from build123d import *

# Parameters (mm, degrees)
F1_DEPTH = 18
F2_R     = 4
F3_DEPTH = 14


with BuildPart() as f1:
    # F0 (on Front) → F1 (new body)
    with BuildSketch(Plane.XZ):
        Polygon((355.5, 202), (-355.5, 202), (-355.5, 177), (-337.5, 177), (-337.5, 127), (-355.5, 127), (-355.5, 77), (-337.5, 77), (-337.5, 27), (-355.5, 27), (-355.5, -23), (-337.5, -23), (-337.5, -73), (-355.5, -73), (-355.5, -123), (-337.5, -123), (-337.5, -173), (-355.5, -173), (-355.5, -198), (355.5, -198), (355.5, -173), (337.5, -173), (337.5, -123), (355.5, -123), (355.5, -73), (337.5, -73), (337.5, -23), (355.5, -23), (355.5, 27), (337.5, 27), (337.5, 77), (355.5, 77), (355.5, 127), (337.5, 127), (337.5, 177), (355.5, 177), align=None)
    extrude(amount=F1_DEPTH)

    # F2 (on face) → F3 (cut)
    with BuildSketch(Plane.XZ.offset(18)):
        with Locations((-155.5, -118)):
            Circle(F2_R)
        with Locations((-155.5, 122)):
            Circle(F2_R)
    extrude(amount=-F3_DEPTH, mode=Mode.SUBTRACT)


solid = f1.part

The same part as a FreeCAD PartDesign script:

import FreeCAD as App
import Part
import Sketcher
from FreeCAD import Vector

doc = App.newDocument("Part")
body = doc.addObject("PartDesign::Body", "Body")

# Sketch on XZ plane
sketch1 = body.newObject("Sketcher::SketchObject", "Sketch")
sketch1.AttachmentSupport = (doc.getObject("XZ_Plane"), [""])
sketch1.MapMode = "FlatFace"
sketch1.addGeometry(Part.LineSegment(Vector(356, 202, 0), Vector(-356, 202, 0)), False)
sketch1.addGeometry(Part.LineSegment(Vector(-356, 202, 0), Vector(-356, 177, 0)), False)
sketch1.addGeometry(Part.LineSegment(Vector(-356, 177, 0), Vector(-338, 177, 0)), False)
sketch1.addGeometry(Part.LineSegment(Vector(-338, 177, 0), Vector(-338, 127, 0)), False)
sketch1.addGeometry(Part.LineSegment(Vector(-338, 127, 0), Vector(-356, 127, 0)), False)
sketch1.addGeometry(Part.LineSegment(Vector(-356, 127, 0), Vector(-356, 77, 0)), False)
sketch1.addGeometry(Part.LineSegment(Vector(-356, 77, 0), Vector(-338, 77, 0)), False)
sketch1.addGeometry(Part.LineSegment(Vector(-338, 77, 0), Vector(-338, 27, 0)), False)
sketch1.addGeometry(Part.LineSegment(Vector(-338, 27, 0), Vector(-356, 27, 0)), False)
sketch1.addGeometry(Part.LineSegment(Vector(-356, 27, 0), Vector(-356, -23, 0)), False)
sketch1.addGeometry(Part.LineSegment(Vector(-356, -23, 0), Vector(-338, -23, 0)), False)
sketch1.addGeometry(Part.LineSegment(Vector(-338, -23, 0), Vector(-338, -73, 0)), False)
sketch1.addGeometry(Part.LineSegment(Vector(-338, -73, 0), Vector(-356, -73, 0)), False)
sketch1.addGeometry(Part.LineSegment(Vector(-356, -73, 0), Vector(-356, -123, 0)), False)
sketch1.addGeometry(Part.LineSegment(Vector(-356, -123, 0), Vector(-338, -123, 0)), False)
sketch1.addGeometry(Part.LineSegment(Vector(-338, -123, 0), Vector(-338, -173, 0)), False)
sketch1.addGeometry(Part.LineSegment(Vector(-338, -173, 0), Vector(-356, -173, 0)), False)
sketch1.addGeometry(Part.LineSegment(Vector(-356, -173, 0), Vector(-356, -198, 0)), False)
sketch1.addGeometry(Part.LineSegment(Vector(-356, -198, 0), Vector(356, -198, 0)), False)
sketch1.addGeometry(Part.LineSegment(Vector(356, -198, 0), Vector(356, -173, 0)), False)
sketch1.addGeometry(Part.LineSegment(Vector(356, -173, 0), Vector(338, -173, 0)), False)
sketch1.addGeometry(Part.LineSegment(Vector(338, -173, 0), Vector(338, -123, 0)), False)
sketch1.addGeometry(Part.LineSegment(Vector(338, -123, 0), Vector(356, -123, 0)), False)
sketch1.addGeometry(Part.LineSegment(Vector(356, -123, 0), Vector(356, -73, 0)), False)
sketch1.addGeometry(Part.LineSegment(Vector(356, -73, 0), Vector(338, -73, 0)), False)
sketch1.addGeometry(Part.LineSegment(Vector(338, -73, 0), Vector(338, -23, 0)), False)
sketch1.addGeometry(Part.LineSegment(Vector(338, -23, 0), Vector(356, -23, 0)), False)
sketch1.addGeometry(Part.LineSegment(Vector(356, -23, 0), Vector(356, 27, 0)), False)
sketch1.addGeometry(Part.LineSegment(Vector(356, 27, 0), Vector(338, 27, 0)), False)
sketch1.addGeometry(Part.LineSegment(Vector(338, 27, 0), Vector(338, 77, 0)), False)
sketch1.addGeometry(Part.LineSegment(Vector(338, 77, 0), Vector(356, 77, 0)), False)
sketch1.addGeometry(Part.LineSegment(Vector(356, 77, 0), Vector(356, 127, 0)), False)
sketch1.addGeometry(Part.LineSegment(Vector(356, 127, 0), Vector(338, 127, 0)), False)
sketch1.addGeometry(Part.LineSegment(Vector(338, 127, 0), Vector(338, 177, 0)), False)
sketch1.addGeometry(Part.LineSegment(Vector(338, 177, 0), Vector(356, 177, 0)), False)
sketch1.addGeometry(Part.LineSegment(Vector(356, 177, 0), Vector(356, 202, 0)), False)
sketch1.addConstraint(Sketcher.Constraint("Coincident", 0, 2, 1, 1))
sketch1.addConstraint(Sketcher.Constraint("Coincident", 1, 2, 2, 1))
sketch1.addConstraint(Sketcher.Constraint("Coincident", 2, 2, 3, 1))
sketch1.addConstraint(Sketcher.Constraint("Coincident", 3, 2, 4, 1))
sketch1.addConstraint(Sketcher.Constraint("Coincident", 4, 2, 5, 1))
sketch1.addConstraint(Sketcher.Constraint("Coincident", 5, 2, 6, 1))
sketch1.addConstraint(Sketcher.Constraint("Coincident", 6, 2, 7, 1))
sketch1.addConstraint(Sketcher.Constraint("Coincident", 7, 2, 8, 1))
sketch1.addConstraint(Sketcher.Constraint("Coincident", 8, 2, 9, 1))
sketch1.addConstraint(Sketcher.Constraint("Coincident", 9, 2, 10, 1))
sketch1.addConstraint(Sketcher.Constraint("Coincident", 10, 2, 11, 1))
sketch1.addConstraint(Sketcher.Constraint("Coincident", 11, 2, 12, 1))
sketch1.addConstraint(Sketcher.Constraint("Coincident", 12, 2, 13, 1))
sketch1.addConstraint(Sketcher.Constraint("Coincident", 13, 2, 14, 1))
sketch1.addConstraint(Sketcher.Constraint("Coincident", 14, 2, 15, 1))
sketch1.addConstraint(Sketcher.Constraint("Coincident", 15, 2, 16, 1))
sketch1.addConstraint(Sketcher.Constraint("Coincident", 16, 2, 17, 1))
sketch1.addConstraint(Sketcher.Constraint("Coincident", 17, 2, 18, 1))
sketch1.addConstraint(Sketcher.Constraint("Coincident", 18, 2, 19, 1))
sketch1.addConstraint(Sketcher.Constraint("Coincident", 19, 2, 20, 1))
sketch1.addConstraint(Sketcher.Constraint("Coincident", 20, 2, 21, 1))
sketch1.addConstraint(Sketcher.Constraint("Coincident", 21, 2, 22, 1))
sketch1.addConstraint(Sketcher.Constraint("Coincident", 22, 2, 23, 1))
sketch1.addConstraint(Sketcher.Constraint("Coincident", 23, 2, 24, 1))
sketch1.addConstraint(Sketcher.Constraint("Coincident", 24, 2, 25, 1))
sketch1.addConstraint(Sketcher.Constraint("Coincident", 25, 2, 26, 1))
sketch1.addConstraint(Sketcher.Constraint("Coincident", 26, 2, 27, 1))
sketch1.addConstraint(Sketcher.Constraint("Coincident", 27, 2, 28, 1))
sketch1.addConstraint(Sketcher.Constraint("Coincident", 28, 2, 29, 1))
sketch1.addConstraint(Sketcher.Constraint("Coincident", 29, 2, 30, 1))
sketch1.addConstraint(Sketcher.Constraint("Coincident", 30, 2, 31, 1))
sketch1.addConstraint(Sketcher.Constraint("Coincident", 31, 2, 32, 1))
sketch1.addConstraint(Sketcher.Constraint("Coincident", 32, 2, 33, 1))
sketch1.addConstraint(Sketcher.Constraint("Coincident", 33, 2, 34, 1))
sketch1.addConstraint(Sketcher.Constraint("Coincident", 34, 2, 35, 1))
sketch1.addConstraint(Sketcher.Constraint("Coincident", 35, 2, 0, 1))
sketch1.addConstraint(Sketcher.Constraint("Horizontal", 0))
sketch1.addConstraint(Sketcher.Constraint("Vertical", 1))
sketch1.addConstraint(Sketcher.Constraint("Horizontal", 2))
sketch1.addConstraint(Sketcher.Constraint("Vertical", 3))
sketch1.addConstraint(Sketcher.Constraint("Horizontal", 4))
sketch1.addConstraint(Sketcher.Constraint("Vertical", 5))
sketch1.addConstraint(Sketcher.Constraint("Horizontal", 6))
sketch1.addConstraint(Sketcher.Constraint("Vertical", 7))
sketch1.addConstraint(Sketcher.Constraint("Horizontal", 8))
sketch1.addConstraint(Sketcher.Constraint("Vertical", 9))
sketch1.addConstraint(Sketcher.Constraint("Horizontal", 10))
sketch1.addConstraint(Sketcher.Constraint("Vertical", 11))
sketch1.addConstraint(Sketcher.Constraint("Horizontal", 12))
sketch1.addConstraint(Sketcher.Constraint("Vertical", 13))
sketch1.addConstraint(Sketcher.Constraint("Horizontal", 14))
sketch1.addConstraint(Sketcher.Constraint("Vertical", 15))
sketch1.addConstraint(Sketcher.Constraint("Horizontal", 16))
sketch1.addConstraint(Sketcher.Constraint("Vertical", 17))
sketch1.addConstraint(Sketcher.Constraint("Horizontal", 18))
sketch1.addConstraint(Sketcher.Constraint("Vertical", 19))
sketch1.addConstraint(Sketcher.Constraint("Horizontal", 20))
sketch1.addConstraint(Sketcher.Constraint("Vertical", 21))
sketch1.addConstraint(Sketcher.Constraint("Horizontal", 22))
sketch1.addConstraint(Sketcher.Constraint("Vertical", 23))
sketch1.addConstraint(Sketcher.Constraint("Horizontal", 24))
sketch1.addConstraint(Sketcher.Constraint("Vertical", 25))
sketch1.addConstraint(Sketcher.Constraint("Horizontal", 26))
sketch1.addConstraint(Sketcher.Constraint("Vertical", 27))
sketch1.addConstraint(Sketcher.Constraint("Horizontal", 28))
sketch1.addConstraint(Sketcher.Constraint("Vertical", 29))
sketch1.addConstraint(Sketcher.Constraint("Horizontal", 30))
sketch1.addConstraint(Sketcher.Constraint("Vertical", 31))
sketch1.addConstraint(Sketcher.Constraint("Horizontal", 32))
sketch1.addConstraint(Sketcher.Constraint("Vertical", 33))
sketch1.addConstraint(Sketcher.Constraint("Horizontal", 34))
sketch1.addConstraint(Sketcher.Constraint("Vertical", 35))
sketch1.addConstraint(Sketcher.Constraint("Symmetric", 16, 2, 19, 2, -2))
sketch1.addConstraint(Sketcher.Constraint("Symmetric", 14, 2, 21, 2, -2))
sketch1.addConstraint(Sketcher.Constraint("Symmetric", 12, 2, 23, 2, -2))
sketch1.addConstraint(Sketcher.Constraint("Symmetric", 10, 2, 25, 2, -2))
sketch1.addConstraint(Sketcher.Constraint("Symmetric", 8, 2, 27, 2, -2))
sketch1.addConstraint(Sketcher.Constraint("Symmetric", 6, 2, 29, 2, -2))
sketch1.addConstraint(Sketcher.Constraint("Symmetric", 4, 2, 31, 2, -2))
sketch1.addConstraint(Sketcher.Constraint("Symmetric", 2, 2, 33, 2, -2))
sketch1.addConstraint(Sketcher.Constraint("Vertical", 1, 2, 4, 2))
sketch1.addConstraint(Sketcher.Constraint("Vertical", 3, 2, 6, 2))
sketch1.addConstraint(Sketcher.Constraint("Vertical", 5, 2, 8, 2))
sketch1.addConstraint(Sketcher.Constraint("Vertical", 7, 2, 10, 2))
sketch1.addConstraint(Sketcher.Constraint("Vertical", 9, 2, 12, 2))
sketch1.addConstraint(Sketcher.Constraint("Vertical", 11, 2, 14, 2))
sketch1.addConstraint(Sketcher.Constraint("Vertical", 13, 2, 16, 2))
sketch1.addConstraint(Sketcher.Constraint("Vertical", 31, 2, 34, 2))
sketch1.addConstraint(Sketcher.Constraint("Equal", 3, 5))
sketch1.addConstraint(Sketcher.Constraint("Equal", 5, 7))
sketch1.addConstraint(Sketcher.Constraint("Equal", 7, 9))
sketch1.addConstraint(Sketcher.Constraint("Equal", 9, 11))
sketch1.addConstraint(Sketcher.Constraint("Equal", 11, 13))
sketch1.addConstraint(Sketcher.Constraint("Equal", 13, 15))
sketch1.addConstraint(Sketcher.Constraint("Equal", 1, 17))
sketch1.addConstraint(Sketcher.Constraint("DistanceX", 0, 2, 0, 1, 711.0))
sketch1.addConstraint(Sketcher.Constraint("DistanceX", 2, 1, 2, 2, 18.0))
sketch1.addConstraint(Sketcher.Constraint("DistanceY", 1, 2, 1, 1, 25.0))
sketch1.addConstraint(Sketcher.Constraint("DistanceY", 3, 2, 3, 1, 50.0))
sketch1.addConstraint(Sketcher.Constraint("DistanceY", -1, 1, 0, 2, 202.0))
pad1 = body.newObject("PartDesign::Pad", "Pad")
pad1.Profile = sketch1
pad1.Length = 18

# Sketch on XZ plane
sketch2 = body.newObject("Sketcher::SketchObject", "Sketch001")
sketch2.AttachmentSupport = (doc.getObject("XZ_Plane"), [""])
sketch2.MapMode = "FlatFace"
sketch2.AttachmentOffset = App.Placement(Vector(0, 0, 18), App.Rotation())
sketch2.addGeometry(Part.Circle(Vector(-155.5, -118, 0), Vector(0, 0, 1), 4), False)
sketch2.addGeometry(Part.Circle(Vector(-155.5, 122, 0), Vector(0, 0, 1), 4), False)
sketch2.addConstraint(Sketcher.Constraint("Equal", 0, 1))
sketch2.addConstraint(Sketcher.Constraint("Vertical", 0, 3, 1, 3))
sketch2.addConstraint(Sketcher.Constraint("Diameter", 0, 8.0))
sketch2.addConstraint(Sketcher.Constraint("DistanceY", 0, 3, -1, 1, 118.0))
sketch2.addConstraint(Sketcher.Constraint("DistanceY", -1, 1, 1, 3, 122.0))
sketch2.addConstraint(Sketcher.Constraint("DistanceX", 0, 3, -1, 1, 155.5))
pocket1 = body.newObject("PartDesign::Pocket", "Pocket")
pocket1.Profile = sketch2
pocket1.Length = 14

doc.recompute()
